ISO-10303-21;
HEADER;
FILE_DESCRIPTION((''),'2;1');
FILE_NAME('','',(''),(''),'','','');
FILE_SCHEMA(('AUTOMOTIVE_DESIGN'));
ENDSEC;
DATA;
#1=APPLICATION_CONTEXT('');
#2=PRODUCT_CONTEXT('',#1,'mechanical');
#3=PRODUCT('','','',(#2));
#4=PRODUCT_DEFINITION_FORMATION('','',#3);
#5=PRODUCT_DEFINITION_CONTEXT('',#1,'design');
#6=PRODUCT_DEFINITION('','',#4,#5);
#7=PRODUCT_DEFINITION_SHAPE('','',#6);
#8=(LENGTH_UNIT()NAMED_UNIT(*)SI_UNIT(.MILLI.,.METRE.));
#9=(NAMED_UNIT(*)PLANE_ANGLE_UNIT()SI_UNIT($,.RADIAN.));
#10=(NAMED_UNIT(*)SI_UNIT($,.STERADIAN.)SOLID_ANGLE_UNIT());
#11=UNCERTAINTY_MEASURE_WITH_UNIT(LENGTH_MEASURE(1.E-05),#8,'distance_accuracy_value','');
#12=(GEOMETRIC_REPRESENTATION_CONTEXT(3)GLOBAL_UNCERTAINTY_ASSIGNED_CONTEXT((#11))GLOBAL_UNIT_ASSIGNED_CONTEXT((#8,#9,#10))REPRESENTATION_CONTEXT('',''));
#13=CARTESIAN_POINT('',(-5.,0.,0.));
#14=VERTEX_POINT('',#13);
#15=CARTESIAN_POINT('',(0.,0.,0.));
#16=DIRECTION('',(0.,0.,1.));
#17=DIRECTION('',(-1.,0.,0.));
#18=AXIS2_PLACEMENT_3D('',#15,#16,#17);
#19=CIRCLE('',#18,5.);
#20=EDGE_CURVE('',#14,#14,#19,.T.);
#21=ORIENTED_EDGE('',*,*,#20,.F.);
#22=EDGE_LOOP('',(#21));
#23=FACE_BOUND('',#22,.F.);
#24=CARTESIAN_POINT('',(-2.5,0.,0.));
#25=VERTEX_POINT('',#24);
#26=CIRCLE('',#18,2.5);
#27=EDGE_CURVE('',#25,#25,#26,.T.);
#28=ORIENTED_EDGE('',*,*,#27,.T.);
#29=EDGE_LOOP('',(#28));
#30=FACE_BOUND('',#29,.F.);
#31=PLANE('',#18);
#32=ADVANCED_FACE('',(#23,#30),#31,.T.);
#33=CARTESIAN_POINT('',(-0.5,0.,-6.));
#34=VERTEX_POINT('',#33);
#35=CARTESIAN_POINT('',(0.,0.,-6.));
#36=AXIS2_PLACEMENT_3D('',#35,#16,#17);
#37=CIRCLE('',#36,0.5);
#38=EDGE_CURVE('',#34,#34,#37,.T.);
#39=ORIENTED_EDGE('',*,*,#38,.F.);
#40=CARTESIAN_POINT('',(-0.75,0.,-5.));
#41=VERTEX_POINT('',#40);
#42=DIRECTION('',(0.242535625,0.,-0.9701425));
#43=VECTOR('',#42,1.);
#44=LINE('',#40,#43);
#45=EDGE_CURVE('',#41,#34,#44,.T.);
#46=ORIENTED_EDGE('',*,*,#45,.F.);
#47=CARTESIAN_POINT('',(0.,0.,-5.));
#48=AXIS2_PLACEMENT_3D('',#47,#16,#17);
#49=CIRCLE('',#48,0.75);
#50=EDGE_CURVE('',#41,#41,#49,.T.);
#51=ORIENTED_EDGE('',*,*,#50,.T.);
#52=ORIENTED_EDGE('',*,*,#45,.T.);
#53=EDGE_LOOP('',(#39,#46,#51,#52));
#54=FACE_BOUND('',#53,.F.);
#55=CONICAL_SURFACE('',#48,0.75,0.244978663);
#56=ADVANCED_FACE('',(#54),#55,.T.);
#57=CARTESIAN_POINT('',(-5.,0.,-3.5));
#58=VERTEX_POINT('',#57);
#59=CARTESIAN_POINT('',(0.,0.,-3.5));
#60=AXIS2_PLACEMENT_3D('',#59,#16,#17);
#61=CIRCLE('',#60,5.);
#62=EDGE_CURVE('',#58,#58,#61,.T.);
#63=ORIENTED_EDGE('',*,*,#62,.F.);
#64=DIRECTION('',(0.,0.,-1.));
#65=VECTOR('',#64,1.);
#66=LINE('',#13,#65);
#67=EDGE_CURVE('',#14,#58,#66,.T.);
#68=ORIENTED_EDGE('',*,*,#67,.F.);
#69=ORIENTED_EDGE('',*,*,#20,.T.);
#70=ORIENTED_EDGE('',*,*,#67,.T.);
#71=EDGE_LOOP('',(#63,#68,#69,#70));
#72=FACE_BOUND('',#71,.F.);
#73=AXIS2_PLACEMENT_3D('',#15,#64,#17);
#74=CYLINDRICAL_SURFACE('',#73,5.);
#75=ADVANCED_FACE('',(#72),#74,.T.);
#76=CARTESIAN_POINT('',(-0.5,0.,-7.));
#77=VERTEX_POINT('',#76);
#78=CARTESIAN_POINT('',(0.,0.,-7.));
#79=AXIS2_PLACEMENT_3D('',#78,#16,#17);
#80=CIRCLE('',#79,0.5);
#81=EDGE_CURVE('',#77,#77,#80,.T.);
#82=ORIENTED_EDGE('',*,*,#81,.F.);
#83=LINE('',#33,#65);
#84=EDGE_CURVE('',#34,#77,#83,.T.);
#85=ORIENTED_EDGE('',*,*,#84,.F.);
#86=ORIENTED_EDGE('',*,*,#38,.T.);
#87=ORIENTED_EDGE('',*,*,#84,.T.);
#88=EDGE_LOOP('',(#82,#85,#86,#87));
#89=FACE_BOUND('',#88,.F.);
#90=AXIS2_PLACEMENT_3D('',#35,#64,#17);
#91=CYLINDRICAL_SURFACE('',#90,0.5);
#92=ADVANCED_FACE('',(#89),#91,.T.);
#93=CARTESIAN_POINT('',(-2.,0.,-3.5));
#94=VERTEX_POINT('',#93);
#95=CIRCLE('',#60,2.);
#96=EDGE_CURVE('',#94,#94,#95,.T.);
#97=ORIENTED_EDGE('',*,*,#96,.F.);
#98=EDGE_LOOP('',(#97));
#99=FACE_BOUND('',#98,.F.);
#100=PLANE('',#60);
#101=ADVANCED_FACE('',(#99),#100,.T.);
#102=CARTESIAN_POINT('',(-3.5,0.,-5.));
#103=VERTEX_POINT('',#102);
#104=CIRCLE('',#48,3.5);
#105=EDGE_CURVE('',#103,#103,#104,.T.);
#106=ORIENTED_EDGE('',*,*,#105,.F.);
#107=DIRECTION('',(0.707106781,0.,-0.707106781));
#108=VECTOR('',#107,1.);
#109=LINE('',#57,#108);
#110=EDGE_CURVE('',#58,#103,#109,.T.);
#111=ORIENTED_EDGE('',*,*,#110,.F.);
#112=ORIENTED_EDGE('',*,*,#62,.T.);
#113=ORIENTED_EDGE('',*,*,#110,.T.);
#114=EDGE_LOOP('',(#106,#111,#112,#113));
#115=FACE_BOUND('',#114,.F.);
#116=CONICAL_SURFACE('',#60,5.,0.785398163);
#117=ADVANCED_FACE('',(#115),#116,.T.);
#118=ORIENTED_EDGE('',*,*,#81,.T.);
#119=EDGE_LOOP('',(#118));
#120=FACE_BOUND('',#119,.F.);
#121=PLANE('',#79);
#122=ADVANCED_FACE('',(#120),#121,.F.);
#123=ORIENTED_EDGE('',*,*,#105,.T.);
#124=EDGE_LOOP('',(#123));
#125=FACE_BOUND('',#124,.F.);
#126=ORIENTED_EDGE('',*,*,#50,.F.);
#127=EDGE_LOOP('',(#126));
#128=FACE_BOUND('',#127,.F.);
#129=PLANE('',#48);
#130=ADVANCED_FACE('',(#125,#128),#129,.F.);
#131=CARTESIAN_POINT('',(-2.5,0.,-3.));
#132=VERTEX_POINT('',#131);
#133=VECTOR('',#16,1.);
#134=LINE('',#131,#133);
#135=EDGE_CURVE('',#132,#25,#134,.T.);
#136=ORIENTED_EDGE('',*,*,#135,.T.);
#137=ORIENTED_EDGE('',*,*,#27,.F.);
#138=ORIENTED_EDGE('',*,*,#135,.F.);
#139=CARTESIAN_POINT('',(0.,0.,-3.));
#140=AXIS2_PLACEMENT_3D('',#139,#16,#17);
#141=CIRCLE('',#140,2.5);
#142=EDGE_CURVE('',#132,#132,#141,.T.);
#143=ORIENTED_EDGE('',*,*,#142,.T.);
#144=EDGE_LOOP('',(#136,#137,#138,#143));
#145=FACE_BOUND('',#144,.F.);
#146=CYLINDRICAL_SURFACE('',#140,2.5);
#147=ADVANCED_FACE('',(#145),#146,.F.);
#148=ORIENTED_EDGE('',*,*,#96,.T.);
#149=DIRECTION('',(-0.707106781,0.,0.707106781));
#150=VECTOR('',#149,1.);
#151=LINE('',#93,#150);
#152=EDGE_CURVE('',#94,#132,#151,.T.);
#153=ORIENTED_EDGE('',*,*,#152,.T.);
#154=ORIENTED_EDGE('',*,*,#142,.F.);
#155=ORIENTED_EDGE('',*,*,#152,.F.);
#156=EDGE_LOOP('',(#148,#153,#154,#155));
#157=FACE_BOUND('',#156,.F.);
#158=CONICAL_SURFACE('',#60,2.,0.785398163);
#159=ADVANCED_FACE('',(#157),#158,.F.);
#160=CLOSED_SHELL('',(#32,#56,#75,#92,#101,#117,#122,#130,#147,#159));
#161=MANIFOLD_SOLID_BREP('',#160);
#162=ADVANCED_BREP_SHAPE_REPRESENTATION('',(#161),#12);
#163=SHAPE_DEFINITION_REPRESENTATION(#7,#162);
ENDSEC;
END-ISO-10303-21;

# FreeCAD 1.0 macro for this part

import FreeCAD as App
import Part
import Sketcher

V = App.Vector
Q = App.Units.Quantity


def add_polygon(sketch, points):
    """Adds a closed chain of lines whose ends are joined by coincident constraints."""
    first, n = sketch.GeometryCount, len(points)
    for a, b in zip(points, points[1:] + points[:1]):
        sketch.addGeometry(Part.LineSegment(App.Vector(*a, 0), App.Vector(*b, 0)), False)
    for i in range(n):
        sketch.addConstraint(Sketcher.Constraint("Coincident", first + i, 2, first + (i + 1) % n, 1))

doc = App.newDocument("Part")
body = doc.addObject("PartDesign::Body", "Body")

# Sketch on XZ plane
sketch1 = doc.addObject("Sketcher::SketchObject", "Sketch")
body.addObject(sketch1)
sketch1.AttachmentSupport = (doc.XZ_Plane, [""])
sketch1.MapMode = "FlatFace"
add_polygon(sketch1, [(-2.5, 0), (-5, 0), (-5, -3.5), (-3.5, -5), (-0.8, -5), (-0.5, -6), (-0.5, -7), (0, -7), (0, -3.5), (-2, -3.5), (-2.5, -3)])  # lines 0-10
sketch1.addConstraint(Sketcher.Constraint("Horizontal", 0))
sketch1.addConstraint(Sketcher.Constraint("Vertical", 1))
sketch1.addConstraint(Sketcher.Constraint("Horizontal", 3))
sketch1.addConstraint(Sketcher.Constraint("Vertical", 5))
sketch1.addConstraint(Sketcher.Constraint("Horizontal", 6))
sketch1.addConstraint(Sketcher.Constraint("Vertical", 7))
sketch1.addConstraint(Sketcher.Constraint("Horizontal", 8))
sketch1.addConstraint(Sketcher.Constraint("Vertical", 10))
sketch1.addConstraint(Sketcher.Constraint("PointOnObject", 0, 2, -1))
sketch1.addConstraint(Sketcher.Constraint("PointOnObject", 6, 2, -2))
sketch1.addConstraint(Sketcher.Constraint("Parallel", 2, 9))
sketch1.addConstraint(Sketcher.Constraint("Horizontal", 1, 2, 7, 2))
sketch1.addConstraint(Sketcher.Constraint("Equal", 1, 7))
sketch1.addConstraint(Sketcher.Constraint("DistanceX", 8, 2, 8, 1, Q("2 mm")))
sketch1.addConstraint(Sketcher.Constraint("DistanceY", 5, 2, 5, 1, Q("1 mm")))
sketch1.addConstraint(Sketcher.Constraint("DistanceY", 10, 1, 10, 2, Q("3 mm")))
sketch1.addConstraint(Sketcher.Constraint("Angle", 2, Q("-45 deg")))
sketch1.addConstraint(Sketcher.Constraint("DistanceX", 0, 2, 0, 1, Q("2.5 mm")))
sketch1.addConstraint(Sketcher.Constraint("DistanceX", 6, 1, 6, 2, Q("0.5 mm")))
sketch1.addConstraint(Sketcher.Constraint("DistanceY", 1, 2, 1, 1, Q("3.5 mm")))
sketch1.addConstraint(Sketcher.Constraint("DistanceY", 2, 2, -1, 1, Q("5 mm")))
sketch1.addConstraint(Sketcher.Constraint("DistanceX", 3, 1, 3, 2, Q("2.75 mm")))
revolution = doc.addObject("PartDesign::Revolution", "Revolution")
body.addObject(revolution)
revolution.Profile = sketch1
revolution.ReferenceAxis = (sketch1, ["V_Axis"])
revolution.Angle = 360

doc.recompute()
